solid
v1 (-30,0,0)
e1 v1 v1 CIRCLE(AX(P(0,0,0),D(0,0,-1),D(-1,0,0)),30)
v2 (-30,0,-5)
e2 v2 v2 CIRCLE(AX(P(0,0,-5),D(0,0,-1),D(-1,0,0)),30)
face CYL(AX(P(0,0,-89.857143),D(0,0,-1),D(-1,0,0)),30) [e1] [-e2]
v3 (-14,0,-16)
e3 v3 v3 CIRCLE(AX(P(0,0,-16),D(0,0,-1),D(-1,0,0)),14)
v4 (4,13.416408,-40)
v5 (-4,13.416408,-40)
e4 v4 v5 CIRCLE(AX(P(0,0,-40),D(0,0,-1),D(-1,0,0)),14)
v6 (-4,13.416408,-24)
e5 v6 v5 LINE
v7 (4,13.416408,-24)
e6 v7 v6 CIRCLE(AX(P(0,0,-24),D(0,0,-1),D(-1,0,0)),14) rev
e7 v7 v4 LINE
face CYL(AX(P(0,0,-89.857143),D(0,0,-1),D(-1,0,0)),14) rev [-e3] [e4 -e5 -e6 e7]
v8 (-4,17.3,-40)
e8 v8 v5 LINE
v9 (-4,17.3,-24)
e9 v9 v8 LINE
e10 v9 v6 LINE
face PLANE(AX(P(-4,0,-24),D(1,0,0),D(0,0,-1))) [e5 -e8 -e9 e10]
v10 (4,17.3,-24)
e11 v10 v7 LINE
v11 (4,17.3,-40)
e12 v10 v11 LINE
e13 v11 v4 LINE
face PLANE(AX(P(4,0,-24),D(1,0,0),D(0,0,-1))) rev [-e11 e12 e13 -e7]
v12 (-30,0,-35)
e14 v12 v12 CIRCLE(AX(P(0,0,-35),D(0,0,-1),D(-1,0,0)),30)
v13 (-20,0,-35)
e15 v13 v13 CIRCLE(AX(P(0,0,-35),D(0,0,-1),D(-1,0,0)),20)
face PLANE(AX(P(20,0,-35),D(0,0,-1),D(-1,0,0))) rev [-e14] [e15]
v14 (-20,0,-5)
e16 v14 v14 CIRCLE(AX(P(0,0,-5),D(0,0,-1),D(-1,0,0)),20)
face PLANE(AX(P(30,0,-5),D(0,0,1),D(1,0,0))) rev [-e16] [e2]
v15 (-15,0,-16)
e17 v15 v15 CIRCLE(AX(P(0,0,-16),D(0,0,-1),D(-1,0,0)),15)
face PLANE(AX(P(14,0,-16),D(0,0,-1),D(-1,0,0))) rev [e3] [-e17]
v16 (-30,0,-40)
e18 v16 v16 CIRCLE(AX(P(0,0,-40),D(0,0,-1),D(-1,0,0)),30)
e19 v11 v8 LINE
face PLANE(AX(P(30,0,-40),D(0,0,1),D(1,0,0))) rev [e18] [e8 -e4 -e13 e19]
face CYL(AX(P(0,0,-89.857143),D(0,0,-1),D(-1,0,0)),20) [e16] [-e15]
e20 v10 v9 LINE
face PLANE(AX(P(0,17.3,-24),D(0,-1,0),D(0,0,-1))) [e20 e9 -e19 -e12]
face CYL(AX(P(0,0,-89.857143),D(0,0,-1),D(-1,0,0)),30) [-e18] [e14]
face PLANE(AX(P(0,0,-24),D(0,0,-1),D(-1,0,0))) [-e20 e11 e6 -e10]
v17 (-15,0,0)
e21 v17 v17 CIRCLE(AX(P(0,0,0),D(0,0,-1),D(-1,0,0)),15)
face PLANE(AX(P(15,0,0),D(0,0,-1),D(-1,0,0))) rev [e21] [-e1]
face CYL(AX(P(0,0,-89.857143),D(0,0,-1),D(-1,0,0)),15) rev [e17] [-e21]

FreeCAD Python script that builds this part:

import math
import FreeCAD as App
import Part
import Sketcher


def add_polygon(sketch, points):
    """Adds a closed chain of lines whose ends are joined by coincident constraints."""
    first, n = sketch.GeometryCount, len(points)
    for a, b in zip(points, points[1:] + points[:1]):
        sketch.addGeometry(Part.LineSegment(App.Vector(*a, 0), App.Vector(*b, 0)), False)
    for i in range(n):
        sketch.addConstraint(Sketcher.Constraint("Coincident", first + i, 2, first + (i + 1) % n, 1))

doc = App.newDocument("Part")
body = doc.addObject("PartDesign::Body", "Body")

# Sketch on XZ plane
sketch1 = body.newObject("Sketcher::SketchObject", "Sketch")
sketch1.AttachmentSupport = (doc.getObject("XZ_Plane"), [""])
sketch1.MapMode = "FlatFace"
add_polygon(sketch1, [(15, 0), (30, 0), (30, -5), (20, -5), (20, -35), (30, -35), (30, -40), (14, -40), (14, -16), (15, -16)])  # lines 0-9
sketch1.addConstraint([
    Sketcher.Constraint("Horizontal", 0),
    Sketcher.Constraint("Vertical", 1),
    Sketcher.Constraint("Horizontal", 2),
    Sketcher.Constraint("Vertical", 3),
    Sketcher.Constraint("Horizontal", 4),
    Sketcher.Constraint("Vertical", 5),
    Sketcher.Constraint("Horizontal", 6),
    Sketcher.Constraint("Vertical", 7),
    Sketcher.Constraint("Horizontal", 8),
    Sketcher.Constraint("Vertical", 9),
    Sketcher.Constraint("PointOnObject", 0, 2, -1),
    Sketcher.Constraint("Vertical", 1, 2, 4, 2),
    Sketcher.Constraint("Equal", 1, 5),
    Sketcher.Constraint("Equal", 6, 9),
    Sketcher.Constraint("DistanceX", 0, 1, 0, 2, 15.0),
    Sketcher.Constraint("DistanceX", 2, 2, 2, 1, 10.0),
    Sketcher.Constraint("DistanceX", 6, 2, 6, 1, 16.0),
    Sketcher.Constraint("DistanceY", 1, 2, 1, 1, 5.0),
    Sketcher.Constraint("DistanceY", 3, 2, 3, 1, 30.0),
    Sketcher.Constraint("DistanceX", -1, 1, 0, 2, 30.0),
])
revolution = body.newObject("PartDesign::Revolution", "Revolution")
revolution.Profile = sketch1
revolution.ReferenceAxis = (sketch1, ["V_Axis"])
revolution.Angle = 360

# Sketch on XY plane
sketch2 = body.newObject("Sketcher::SketchObject", "Sketch001")
sketch2.AttachmentSupport = (doc.getObject("XY_Plane"), [""])
sketch2.MapMode = "FlatFace"
sketch2.AttachmentOffset = App.Placement(App.Vector(0, 0, -24), App.Rotation())
sketch2.addGeometry([
    Part.LineSegment(App.Vector(-4, 17.3, 0), App.Vector(4, 17.3, 0)),
    Part.LineSegment(App.Vector(4, 17.3, 0), App.Vector(4, 13.4, 0)),
    Part.ArcOfCircle(Part.Circle(App.Vector(0, 0, 0), App.Vector(0, 0, 1), 14), math.radians(73), math.radians(107)),
    Part.LineSegment(App.Vector(-4, 13.4, 0), App.Vector(-4, 17.3, 0)),
], False)
sketch2.addConstraint([
    Sketcher.Constraint("Coincident", 0, 2, 1, 1),
    Sketcher.Constraint("Coincident", 1, 2, 2, 1),
    Sketcher.Constraint("Coincident", 2, 2, 3, 1),
    Sketcher.Constraint("Coincident", 3, 2, 0, 1),
    Sketcher.Constraint("Horizontal", 0),
    Sketcher.Constraint("Vertical", 1),
    Sketcher.Constraint("Vertical", 3),
    Sketcher.Constraint("Coincident", 2, 3, -1, 1),
    Sketcher.Constraint("Horizontal", 1, 2, 2, 2),
    Sketcher.Constraint("Radius", 2, 14.0),
    Sketcher.Constraint("DistanceX", 0, 1, 0, 2, 8.0),
    Sketcher.Constraint("DistanceY", -1, 1, 0, 2, 17.3),
])
pocket1 = body.newObject("PartDesign::Pocket", "Pocket")
pocket1.Profile = sketch2
pocket1.Length = 16

doc.recompute()
